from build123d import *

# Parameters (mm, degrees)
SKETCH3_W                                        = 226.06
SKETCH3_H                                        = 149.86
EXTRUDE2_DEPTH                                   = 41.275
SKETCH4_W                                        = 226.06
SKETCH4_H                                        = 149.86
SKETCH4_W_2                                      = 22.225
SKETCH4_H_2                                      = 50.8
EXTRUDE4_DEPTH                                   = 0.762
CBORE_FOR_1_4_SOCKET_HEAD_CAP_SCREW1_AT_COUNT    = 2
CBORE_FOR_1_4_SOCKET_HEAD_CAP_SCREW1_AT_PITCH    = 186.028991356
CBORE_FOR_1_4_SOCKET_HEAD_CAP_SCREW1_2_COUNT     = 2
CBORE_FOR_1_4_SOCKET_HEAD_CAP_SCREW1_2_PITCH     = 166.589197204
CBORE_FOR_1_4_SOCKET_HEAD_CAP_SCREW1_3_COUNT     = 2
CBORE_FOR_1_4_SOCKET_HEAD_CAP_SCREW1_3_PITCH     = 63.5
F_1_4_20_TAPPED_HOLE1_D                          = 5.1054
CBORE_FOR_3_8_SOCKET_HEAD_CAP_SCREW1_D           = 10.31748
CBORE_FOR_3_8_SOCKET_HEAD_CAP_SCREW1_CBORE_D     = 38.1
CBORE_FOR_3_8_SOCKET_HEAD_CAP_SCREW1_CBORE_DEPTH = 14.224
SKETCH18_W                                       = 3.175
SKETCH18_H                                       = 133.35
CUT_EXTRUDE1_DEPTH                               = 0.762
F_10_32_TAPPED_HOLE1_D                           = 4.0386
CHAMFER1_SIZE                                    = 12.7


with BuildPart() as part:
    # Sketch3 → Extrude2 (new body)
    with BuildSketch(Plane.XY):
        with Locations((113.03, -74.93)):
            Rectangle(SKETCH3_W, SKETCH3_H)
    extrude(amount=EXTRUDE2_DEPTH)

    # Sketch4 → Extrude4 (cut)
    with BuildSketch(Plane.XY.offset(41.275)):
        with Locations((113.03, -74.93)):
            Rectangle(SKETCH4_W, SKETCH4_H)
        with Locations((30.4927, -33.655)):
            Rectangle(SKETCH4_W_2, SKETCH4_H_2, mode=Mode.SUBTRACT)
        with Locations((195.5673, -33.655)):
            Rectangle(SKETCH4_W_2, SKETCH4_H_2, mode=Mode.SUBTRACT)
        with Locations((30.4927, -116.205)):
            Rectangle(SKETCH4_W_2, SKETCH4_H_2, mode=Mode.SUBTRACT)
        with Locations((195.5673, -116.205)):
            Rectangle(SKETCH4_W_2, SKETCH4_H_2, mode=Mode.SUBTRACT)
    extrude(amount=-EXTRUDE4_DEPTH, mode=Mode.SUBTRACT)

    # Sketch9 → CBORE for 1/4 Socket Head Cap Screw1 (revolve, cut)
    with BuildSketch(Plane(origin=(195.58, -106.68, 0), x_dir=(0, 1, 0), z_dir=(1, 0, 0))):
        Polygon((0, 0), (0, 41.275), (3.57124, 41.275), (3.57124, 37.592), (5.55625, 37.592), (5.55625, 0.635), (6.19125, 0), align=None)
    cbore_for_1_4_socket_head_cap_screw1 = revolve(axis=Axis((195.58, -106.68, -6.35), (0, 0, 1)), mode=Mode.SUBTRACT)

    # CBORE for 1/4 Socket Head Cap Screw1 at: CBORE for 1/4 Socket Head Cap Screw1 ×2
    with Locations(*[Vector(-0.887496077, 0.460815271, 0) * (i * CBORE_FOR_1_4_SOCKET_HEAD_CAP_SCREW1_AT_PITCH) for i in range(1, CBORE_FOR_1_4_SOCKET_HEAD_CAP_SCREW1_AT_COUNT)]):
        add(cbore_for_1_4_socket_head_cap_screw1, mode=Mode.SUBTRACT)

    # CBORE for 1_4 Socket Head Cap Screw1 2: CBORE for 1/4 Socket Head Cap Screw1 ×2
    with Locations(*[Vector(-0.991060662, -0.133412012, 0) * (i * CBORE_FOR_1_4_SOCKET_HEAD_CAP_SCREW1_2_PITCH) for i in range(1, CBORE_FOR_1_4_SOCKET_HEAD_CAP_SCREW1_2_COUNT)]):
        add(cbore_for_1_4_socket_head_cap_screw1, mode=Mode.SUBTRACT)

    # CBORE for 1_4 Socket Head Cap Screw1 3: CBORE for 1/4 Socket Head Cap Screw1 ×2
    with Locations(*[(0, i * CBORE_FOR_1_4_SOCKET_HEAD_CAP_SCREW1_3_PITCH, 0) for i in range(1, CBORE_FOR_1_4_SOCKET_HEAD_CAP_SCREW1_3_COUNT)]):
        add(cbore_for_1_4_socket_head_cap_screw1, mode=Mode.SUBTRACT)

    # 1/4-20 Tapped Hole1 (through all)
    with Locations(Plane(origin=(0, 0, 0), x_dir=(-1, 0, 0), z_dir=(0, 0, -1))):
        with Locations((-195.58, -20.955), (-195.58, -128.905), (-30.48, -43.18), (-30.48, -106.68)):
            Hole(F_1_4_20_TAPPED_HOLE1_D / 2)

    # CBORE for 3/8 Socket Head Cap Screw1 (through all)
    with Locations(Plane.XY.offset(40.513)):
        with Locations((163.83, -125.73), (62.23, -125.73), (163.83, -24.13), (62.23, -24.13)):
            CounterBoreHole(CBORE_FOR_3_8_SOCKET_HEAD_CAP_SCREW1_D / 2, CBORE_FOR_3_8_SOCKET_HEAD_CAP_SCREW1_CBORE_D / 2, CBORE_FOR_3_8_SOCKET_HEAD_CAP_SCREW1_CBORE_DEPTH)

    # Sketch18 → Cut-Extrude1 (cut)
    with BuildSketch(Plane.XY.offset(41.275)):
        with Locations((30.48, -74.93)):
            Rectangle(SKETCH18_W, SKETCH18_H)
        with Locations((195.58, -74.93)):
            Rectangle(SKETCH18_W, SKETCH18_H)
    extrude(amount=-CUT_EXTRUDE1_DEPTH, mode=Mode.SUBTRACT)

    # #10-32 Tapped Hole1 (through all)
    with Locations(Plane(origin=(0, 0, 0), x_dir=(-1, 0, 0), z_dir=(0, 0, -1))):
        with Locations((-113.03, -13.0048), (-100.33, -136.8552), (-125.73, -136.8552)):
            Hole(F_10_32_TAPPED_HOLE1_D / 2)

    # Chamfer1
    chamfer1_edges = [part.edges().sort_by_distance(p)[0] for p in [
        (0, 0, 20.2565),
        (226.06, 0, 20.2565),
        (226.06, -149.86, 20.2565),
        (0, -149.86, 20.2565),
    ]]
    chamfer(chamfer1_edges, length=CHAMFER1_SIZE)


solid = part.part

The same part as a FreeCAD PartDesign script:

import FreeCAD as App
import Part
import Sketcher
from FreeCAD import Vector
Q = App.Units.Quantity


def edges_at(feature, points):
    """Names of the edges that pass closest to the given points."""
    edges = feature.Shape.Edges
    near = lambda p: min(range(len(edges)), key=lambda i: edges[i].distToShape(Part.Vertex(*p))[0])
    return sorted({f"Edge{near(p) + 1}" for p in points})

doc = App.newDocument("Part")
body = doc.addObject("PartDesign::Body", "Body")

sketch1 = body.newObject("Sketcher::SketchObject", "Sketch")
sketch1.AttachmentSupport = (doc.getObject("XY_Plane"), [""])
sketch1.MapMode = "FlatFace"
sketch1.addGeometry(Part.LineSegment(Vector(0, 0, 0), Vector(0, -150, 0)), False)
sketch1.addGeometry(Part.LineSegment(Vector(0, -150, 0), Vector(226, -150, 0)), False)
sketch1.addGeometry(Part.LineSegment(Vector(226, -150, 0), Vector(226, 0, 0)), False)
sketch1.addGeometry(Part.LineSegment(Vector(226, 0, 0), Vector(0, 0, 0)), False)
sketch1.addConstraint(Sketcher.Constraint("Coincident", 0, 2, 1, 1))
sketch1.addConstraint(Sketcher.Constraint("Coincident", 1, 2, 2, 1))
sketch1.addConstraint(Sketcher.Constraint("Coincident", 2, 2, 3, 1))
sketch1.addConstraint(Sketcher.Constraint("Coincident", 3, 2, 0, 1))
sketch1.addConstraint(Sketcher.Constraint("Vertical", 0))
sketch1.addConstraint(Sketcher.Constraint("Horizontal", 1))
sketch1.addConstraint(Sketcher.Constraint("Vertical", 2))
sketch1.addConstraint(Sketcher.Constraint("Horizontal", 3))
sketch1.addConstraint(Sketcher.Constraint("Coincident", 3, 2, -1, 1))
sketch1.addConstraint(Sketcher.Constraint("DistanceX", 1, 1, 1, 2, Q("8.9 in")))
sketch1.addConstraint(Sketcher.Constraint("DistanceY", 0, 2, 0, 1, Q("5.9 in")))
pad1 = body.newObject("PartDesign::Pad", "Pad")
pad1.Profile = sketch1
pad1.Length = Q("1.625 in")

sketch2 = body.newObject("Sketcher::SketchObject", "Sketch001")
sketch2.AttachmentSupport = (doc.getObject("XY_Plane"), [""])
sketch2.MapMode = "FlatFace"
sketch2.AttachmentOffset = App.Placement(Vector(0, 0, 1.625 * 25.4), App.Rotation())
sketch2.addGeometry(Part.LineSegment(Vector(0, 0, 0), Vector(0, -150, 0)), False)
sketch2.addGeometry(Part.LineSegment(Vector(0, -150, 0), Vector(226, -150, 0)), False)
sketch2.addGeometry(Part.LineSegment(Vector(226, -150, 0), Vector(226, 0, 0)), False)
sketch2.addGeometry(Part.LineSegment(Vector(226, 0, 0), Vector(0, 0, 0)), False)
sketch2.addGeometry(Part.LineSegment(Vector(42, -142, 0), Vector(19, -142, 0)), False)
sketch2.addGeometry(Part.LineSegment(Vector(19, -142, 0), Vector(19, -91, 0)), False)
sketch2.addGeometry(Part.LineSegment(Vector(19, -91, 0), Vector(42, -91, 0)), False)
sketch2.addGeometry(Part.LineSegment(Vector(42, -91, 0), Vector(42, -142, 0)), False)
sketch2.addGeometry(Part.LineSegment(Vector(207, -142, 0), Vector(184, -142, 0)), False)
sketch2.addGeometry(Part.LineSegment(Vector(184, -142, 0), Vector(184, -91, 0)), False)
sketch2.addGeometry(Part.LineSegment(Vector(184, -91, 0), Vector(207, -91, 0)), False)
sketch2.addGeometry(Part.LineSegment(Vector(207, -91, 0), Vector(207, -142, 0)), False)
sketch2.addGeometry(Part.LineSegment(Vector(42, -59, 0), Vector(19, -59, 0)), False)
sketch2.addGeometry(Part.LineSegment(Vector(19, -59, 0), Vector(19, -8, 0)), False)
sketch2.addGeometry(Part.LineSegment(Vector(19, -8, 0), Vector(42, -8, 0)), False)
sketch2.addGeometry(Part.LineSegment(Vector(42, -8, 0), Vector(42, -59, 0)), False)
sketch2.addGeometry(Part.LineSegment(Vector(207, -59, 0), Vector(184, -59, 0)), False)
sketch2.addGeometry(Part.LineSegment(Vector(184, -59, 0), Vector(184, -8, 0)), False)
sketch2.addGeometry(Part.LineSegment(Vector(184, -8, 0), Vector(207, -8, 0)), False)
sketch2.addGeometry(Part.LineSegment(Vector(207, -8, 0), Vector(207, -59, 0)), False)
sketch2.addConstraint(Sketcher.Constraint("Coincident", 0, 2, 1, 1))
sketch2.addConstraint(Sketcher.Constraint("Coincident", 1, 2, 2, 1))
sketch2.addConstraint(Sketcher.Constraint("Coincident", 2, 2, 3, 1))
sketch2.addConstraint(Sketcher.Constraint("Coincident", 3, 2, 0, 1))
sketch2.addConstraint(Sketcher.Constraint("Coincident", 4, 2, 5, 1))
sketch2.addConstraint(Sketcher.Constraint("Coincident", 5, 2, 6, 1))
sketch2.addConstraint(Sketcher.Constraint("Coincident", 6, 2, 7, 1))
sketch2.addConstraint(Sketcher.Constraint("Coincident", 7, 2, 4, 1))
sketch2.addConstraint(Sketcher.Constraint("Coincident", 8, 2, 9, 1))
sketch2.addConstraint(Sketcher.Constraint("Coincident", 9, 2, 10, 1))
sketch2.addConstraint(Sketcher.Constraint("Coincident", 10, 2, 11, 1))
sketch2.addConstraint(Sketcher.Constraint("Coincident", 11, 2, 8, 1))
sketch2.addConstraint(Sketcher.Constraint("Coincident", 12, 2, 13, 1))
sketch2.addConstraint(Sketcher.Constraint("Coincident", 13, 2, 14, 1))
sketch2.addConstraint(Sketcher.Constraint("Coincident", 14, 2, 15, 1))
sketch2.addConstraint(Sketcher.Constraint("Coincident", 15, 2, 12, 1))
sketch2.addConstraint(Sketcher.Constraint("Coincident", 16, 2, 17, 1))
sketch2.addConstraint(Sketcher.Constraint("Coincident", 17, 2, 18, 1))
sketch2.addConstraint(Sketcher.Constraint("Coincident", 18, 2, 19, 1))
sketch2.addConstraint(Sketcher.Constraint("Coincident", 19, 2, 16, 1))
sketch2.addConstraint(Sketcher.Constraint("Vertical", 0))
sketch2.addConstraint(Sketcher.Constraint("Horizontal", 1))
sketch2.addConstraint(Sketcher.Constraint("Vertical", 2))
sketch2.addConstraint(Sketcher.Constraint("Horizontal", 3))
sketch2.addConstraint(Sketcher.Constraint("Horizontal", 4))
sketch2.addConstraint(Sketcher.Constraint("Vertical", 5))
sketch2.addConstraint(Sketcher.Constraint("Horizontal", 6))
sketch2.addConstraint(Sketcher.Constraint("Vertical", 7))
sketch2.addConstraint(Sketcher.Constraint("Horizontal", 8))
sketch2.addConstraint(Sketcher.Constraint("Vertical", 9))
sketch2.addConstraint(Sketcher.Constraint("Horizontal", 10))
sketch2.addConstraint(Sketcher.Constraint("Vertical", 11))
sketch2.addConstraint(Sketcher.Constraint("Horizontal", 12))
sketch2.addConstraint(Sketcher.Constraint("Vertical", 13))
sketch2.addConstraint(Sketcher.Constraint("Horizontal", 14))
sketch2.addConstraint(Sketcher.Constraint("Vertical", 15))
sketch2.addConstraint(Sketcher.Constraint("Horizontal", 16))
sketch2.addConstraint(Sketcher.Constraint("Vertical", 17))
sketch2.addConstraint(Sketcher.Constraint("Horizontal", 18))
sketch2.addConstraint(Sketcher.Constraint("Vertical", 19))
sketch2.addConstraint(Sketcher.Constraint("Coincident", 3, 2, -1, 1))
sketch2.addConstraint(Sketcher.Constraint("Horizontal", 7, 2, 8, 2))
sketch2.addConstraint(Sketcher.Constraint("Horizontal", 6, 2, 9, 2))
sketch2.addConstraint(Sketcher.Constraint("Horizontal", 15, 2, 16, 2))
sketch2.addConstraint(Sketcher.Constraint("Horizontal", 14, 2, 17, 2))
sketch2.addConstraint(Sketcher.Constraint("Vertical", 5, 2, 12, 2))
sketch2.addConstraint(Sketcher.Constraint("Vertical", 7, 2, 14, 2))
sketch2.addConstraint(Sketcher.Constraint("Vertical", 9, 2, 16, 2))
sketch2.addConstraint(Sketcher.Constraint("Vertical", 11, 2, 18, 2))
sketch2.addConstraint(Sketcher.Constraint("Equal", 6, 8))
sketch2.addConstraint(Sketcher.Constraint("Equal", 11, 13))
sketch2.addConstraint(Sketcher.Constraint("DistanceY", 5, 1, 5, 2, Q("2 in")))
sketch2.addConstraint(Sketcher.Constraint("DistanceX", 1, 1, 1, 2, Q("8.9 in")))
sketch2.addConstraint(Sketcher.Constraint("DistanceY", 0, 2, 0, 1, Q("5.9 in")))
sketch2.addConstraint(Sketcher.Constraint("DistanceX", 4, 2, 4, 1, Q("0.875 in")))
sketch2.addConstraint(Sketcher.Constraint("DistanceY", 5, 2, 12, 2, Q("1.25 in")))
sketch2.addConstraint(Sketcher.Constraint("DistanceX", -1, 1, 4, 2, Q("0.763 in")))
sketch2.addConstraint(Sketcher.Constraint("DistanceY", 4, 2, -1, 1, Q("5.575 in")))
sketch2.addConstraint(Sketcher.Constraint("DistanceX", -1, 1, 8, 2, Q("7.262 in")))
pocket1 = body.newObject("PartDesign::Pocket", "Pocket")
pocket1.Profile = sketch2
pocket1.Length = Q("0.03 in")

sketch3 = body.newObject("Sketcher::SketchObject", "Sketch002")
sketch3.AttachmentSupport = (doc.getObject("YZ_Plane"), [""])
sketch3.MapMode = "FlatFace"
sketch3.AttachmentOffset = App.Placement(Vector(0, 0, 7.7 * 25.4), App.Rotation())
sketch3.addGeometry(Part.LineSegment(Vector(-106.7, 41.3, 0), Vector(-106.7, 0, 0)), False)
sketch3.addGeometry(Part.LineSegment(Vector(-106.7, 0, 0), Vector(-100.5, 0, 0)), False)
sketch3.addGeometry(Part.LineSegment(Vector(-100.5, 0, 0), Vector(-101.1, 0.6, 0)), False)
sketch3.addGeometry(Part.LineSegment(Vector(-101.1, 0.6, 0), Vector(-101.1, 37.6, 0)), False)
sketch3.addGeometry(Part.LineSegment(Vector(-101.1, 37.6, 0), Vector(-103.1, 37.6, 0)), False)
sketch3.addGeometry(Part.LineSegment(Vector(-103.1, 37.6, 0), Vector(-103.1, 41.3, 0)), False)
sketch3.addGeometry(Part.LineSegment(Vector(-103.1, 41.3, 0), Vector(-106.7, 41.3, 0)), False)
sketch3.addGeometry(Part.LineSegment(Vector(-106.7, 0, 0), Vector(-106.7, 41.3, 0)), True)
sketch3.addConstraint(Sketcher.Constraint("Coincident", 0, 2, 1, 1))
sketch3.addConstraint(Sketcher.Constraint("Coincident", 1, 2, 2, 1))
sketch3.addConstraint(Sketcher.Constraint("Coincident", 2, 2, 3, 1))
sketch3.addConstraint(Sketcher.Constraint("Coincident", 3, 2, 4, 1))
sketch3.addConstraint(Sketcher.Constraint("Coincident", 4, 2, 5, 1))
sketch3.addConstraint(Sketcher.Constraint("Coincident", 5, 2, 6, 1))
sketch3.addConstraint(Sketcher.Constraint("Coincident", 6, 2, 0, 1))
sketch3.addConstraint(Sketcher.Constraint("Vertical", 0))
sketch3.addConstraint(Sketcher.Constraint("Horizontal", 1))
sketch3.addConstraint(Sketcher.Constraint("Vertical", 3))
sketch3.addConstraint(Sketcher.Constraint("Horizontal", 4))
sketch3.addConstraint(Sketcher.Constraint("Vertical", 5))
sketch3.addConstraint(Sketcher.Constraint("Horizontal", 6))
sketch3.addConstraint(Sketcher.Constraint("Vertical", 7))
sketch3.addConstraint(Sketcher.Constraint("Coincident", 7, 1, 0, 2))
sketch3.addConstraint(Sketcher.Constraint("PointOnObject", 0, 2, -1))
sketch3.addConstraint(Sketcher.Constraint("Horizontal", 5, 2, 7, 2))
sketch3.addConstraint(Sketcher.Constraint("Angle", 2, Q("135 deg")))
sketch3.addConstraint(Sketcher.Constraint("DistanceX", 0, 2, -1, 1, Q("4.2 in")))
sketch3.addConstraint(Sketcher.Constraint("DistanceY", 2, 2, 5, 2, Q("1.6 in")))
sketch3.addConstraint(Sketcher.Constraint("DistanceY", 0, 2, 0, 1, Q("1.625 in")))
sketch3.addConstraint(Sketcher.Constraint("DistanceY", 3, 1, 3, 2, Q("1.455 in")))
sketch3.addConstraint(Sketcher.Constraint("DistanceX", 6, 2, 6, 1, Q("0.1406 in")))
sketch3.addConstraint(Sketcher.Constraint("DistanceX", 0, 2, 2, 2, Q("0.21875 in")))
groove = body.newObject("PartDesign::Groove", "Groove")
groove.Profile = sketch3
groove.ReferenceAxis = (sketch3, ["Axis0"])
groove.Angle = 360
doc.recompute()

datumline = body.newObject("PartDesign::Line", "DatumLine")
datumline.Placement = App.Placement(Vector(0, 0, 0), App.Rotation(Vector(0, 0, 1), Vector(-0.887496077, 0.460815271, 0)))
linearpattern = body.newObject("PartDesign::LinearPattern", "LinearPattern")
linearpattern.Originals = [groove]
linearpattern.Direction = (datumline, [""])
linearpattern.Mode = "offset"
linearpattern.Offset = 186.028991
linearpattern.Occurrences = 2
body.Tip = linearpattern
doc.recompute()

datumline2 = body.newObject("PartDesign::Line", "DatumLine001")
datumline2.Placement = App.Placement(Vector(0, 0, 0), App.Rotation(Vector(0, 0, 1), Vector(-0.991060662, -0.133412012, 0)))
linearpattern2 = body.newObject("PartDesign::LinearPattern", "LinearPattern001")
linearpattern2.Originals = [groove]
linearpattern2.Direction = (datumline2, [""])
linearpattern2.Mode = "offset"
linearpattern2.Offset = 166.589197
linearpattern2.Occurrences = 2
body.Tip = linearpattern2
doc.recompute()

linearpattern3 = body.newObject("PartDesign::LinearPattern", "LinearPattern002")
linearpattern3.Originals = [groove]
linearpattern3.Direction = (doc.getObject("Y_Axis"), [""])
linearpattern3.Mode = "offset"
linearpattern3.Offset = Q("2.5 in")
linearpattern3.Occurrences = 2
body.Tip = linearpattern3

sketch4 = body.newObject("Sketcher::SketchObject", "Sketch003")
sketch4.AttachmentSupport = (doc.getObject("XY_Plane"), [""])
sketch4.MapMode = "FlatFace"
sketch4.addGeometry(Part.Circle(Vector(195.6, -21, 0), Vector(0, 0, 1), 2.6), False)
sketch4.addGeometry(Part.Circle(Vector(195.6, -128.9, 0), Vector(0, 0, 1), 2.6), False)
sketch4.addGeometry(Part.Circle(Vector(30.5, -43.2, 0), Vector(0, 0, 1), 2.6), False)
sketch4.addGeometry(Part.Circle(Vector(30.5, -106.7, 0), Vector(0, 0, 1), 2.6), False)
sketch4.addConstraint(Sketcher.Constraint("Equal", 0, 1))
sketch4.addConstraint(Sketcher.Constraint("Equal", 1, 2))
sketch4.addConstraint(Sketcher.Constraint("Equal", 2, 3))
sketch4.addConstraint(Sketcher.Constraint("Vertical", 0, 3, 1, 3))
sketch4.addConstraint(Sketcher.Constraint("Vertical", 2, 3, 3, 3))
sketch4.addConstraint(Sketcher.Constraint("Diameter", 0, Q("0.201 in")))
sketch4.addConstraint(Sketcher.Constraint("DistanceX", -1, 1, 0, 3, Q("7.7 in")))
sketch4.addConstraint(Sketcher.Constraint("DistanceX", -1, 1, 2, 3, Q("1.2 in")))
sketch4.addConstraint(Sketcher.Constraint("DistanceY", 2, 3, -1, 1, Q("1.7 in")))
sketch4.addConstraint(Sketcher.Constraint("DistanceY", 3, 3, -1, 1, Q("4.2 in")))
sketch4.addConstraint(Sketcher.Constraint("DistanceY", 1, 3, 0, 3, Q("4.25 in")))
sketch4.addConstraint(Sketcher.Constraint("DistanceY", 0, 3, -1, 1, Q("0.825 in")))
doc.recompute()
hole = body.newObject("PartDesign::Hole", "Hole")
hole.Profile = sketch4
hole.ThreadType = "None"
hole.Diameter = Q("0.201 in")
hole.DepthType = "ThroughAll"
hole.Reversed = True

sketch5 = body.newObject("Sketcher::SketchObject", "Sketch004")
sketch5.AttachmentSupport = (doc.getObject("XY_Plane"), [""])
sketch5.MapMode = "FlatFace"
sketch5.AttachmentOffset = App.Placement(Vector(0, 0, 1.595 * 25.4), App.Rotation())
sketch5.addGeometry(Part.Circle(Vector(164, -126, 0), Vector(0, 0, 1), 5), False)
sketch5.addGeometry(Part.Circle(Vector(62, -126, 0), Vector(0, 0, 1), 5), False)
sketch5.addGeometry(Part.Circle(Vector(164, -24, 0), Vector(0, 0, 1), 5), False)
sketch5.addGeometry(Part.Circle(Vector(62, -24, 0), Vector(0, 0, 1), 5), False)
sketch5.addConstraint(Sketcher.Constraint("Equal", 0, 1))
sketch5.addConstraint(Sketcher.Constraint("Equal", 1, 2))
sketch5.addConstraint(Sketcher.Constraint("Equal", 2, 3))
sketch5.addConstraint(Sketcher.Constraint("Horizontal", 0, 3, 1, 3))
sketch5.addConstraint(Sketcher.Constraint("Horizontal", 2, 3, 3, 3))
sketch5.addConstraint(Sketcher.Constraint("Vertical", 0, 3, 2, 3))
sketch5.addConstraint(Sketcher.Constraint("Vertical", 1, 3, 3, 3))
sketch5.addConstraint(Sketcher.Constraint("DistanceX", 1, 3, 0, 3, Q("4 in")))
sketch5.addConstraint(Sketcher.Constraint("DistanceY", 0, 3, 2, 3, Q("4 in")))
sketch5.addConstraint(Sketcher.Constraint("Diameter", 0, Q("0.4062 in")))
sketch5.addConstraint(Sketcher.Constraint("DistanceX", -1, 1, 0, 3, Q("6.45 in")))
sketch5.addConstraint(Sketcher.Constraint("DistanceY", 0, 3, -1, 1, Q("4.95 in")))
doc.recompute()
hole2 = body.newObject("PartDesign::Hole", "Hole001")
hole2.Profile = sketch5
hole2.ThreadType = "None"
hole2.Diameter = Q("0.4062 in")
hole2.DepthType = "ThroughAll"
hole2.HoleCutType = "Counterbore"
hole2.HoleCutDiameter = Q("1.5 in")
hole2.HoleCutDepth = Q("0.56 in")

sketch6 = body.newObject("Sketcher::SketchObject", "Sketch005")
sketch6.AttachmentSupport = (doc.getObject("XY_Plane"), [""])
sketch6.MapMode = "FlatFace"
sketch6.AttachmentOffset = App.Placement(Vector(0, 0, 1.625 * 25.4), App.Rotation())
sketch6.addGeometry(Part.LineSegment(Vector(28.9, -8.3, 0), Vector(28.9, -141.6, 0)), False)
sketch6.addGeometry(Part.LineSegment(Vector(28.9, -141.6, 0), Vector(32.1, -141.6, 0)), False)
sketch6.addGeometry(Part.LineSegment(Vector(32.1, -141.6, 0), Vector(32.1, -8.3, 0)), False)
sketch6.addGeometry(Part.LineSegment(Vector(32.1, -8.3, 0), Vector(28.9, -8.3, 0)), False)
sketch6.addGeometry(Part.LineSegment(Vector(194, -8.3, 0), Vector(194, -141.6, 0)), False)
sketch6.addGeometry(Part.LineSegment(Vector(194, -141.6, 0), Vector(197.2, -141.6, 0)), False)
sketch6.addGeometry(Part.LineSegment(Vector(197.2, -141.6, 0), Vector(197.2, -8.3, 0)), False)
sketch6.addGeometry(Part.LineSegment(Vector(197.2, -8.3, 0), Vector(194, -8.3, 0)), False)
sketch6.addConstraint(Sketcher.Constraint("Coincident", 0, 2, 1, 1))
sketch6.addConstraint(Sketcher.Constraint("Coincident", 1, 2, 2, 1))
sketch6.addConstraint(Sketcher.Constraint("Coincident", 2, 2, 3, 1))
sketch6.addConstraint(Sketcher.Constraint("Coincident", 3, 2, 0, 1))
sketch6.addConstraint(Sketcher.Constraint("Coincident", 4, 2, 5, 1))
sketch6.addConstraint(Sketcher.Constraint("Coincident", 5, 2, 6, 1))
sketch6.addConstraint(Sketcher.Constraint("Coincident", 6, 2, 7, 1))
sketch6.addConstraint(Sketcher.Constraint("Coincident", 7, 2, 4, 1))
sketch6.addConstraint(Sketcher.Constraint("Vertical", 0))
sketch6.addConstraint(Sketcher.Constraint("Horizontal", 1))
sketch6.addConstraint(Sketcher.Constraint("Vertical", 2))
sketch6.addConstraint(Sketcher.Constraint("Horizontal", 3))
sketch6.addConstraint(Sketcher.Constraint("Vertical", 4))
sketch6.addConstraint(Sketcher.Constraint("Horizontal", 5))
sketch6.addConstraint(Sketcher.Constraint("Vertical", 6))
sketch6.addConstraint(Sketcher.Constraint("Horizontal", 7))
sketch6.addConstraint(Sketcher.Constraint("Horizontal", 1, 2, 4, 2))
sketch6.addConstraint(Sketcher.Constraint("Horizontal", 3, 2, 6, 2))
sketch6.addConstraint(Sketcher.Constraint("Equal", 3, 5))
sketch6.addConstraint(Sketcher.Constraint("DistanceY", 0, 2, 0, 1, Q("5.25 in")))
sketch6.addConstraint(Sketcher.Constraint("DistanceX", 0, 2, 4, 2, Q("6.5 in")))
sketch6.addConstraint(Sketcher.Constraint("DistanceX", 1, 1, 1, 2, Q("0.125 in")))
sketch6.addConstraint(Sketcher.Constraint("DistanceY", 0, 2, -1, 1, Q("5.575 in")))
sketch6.addConstraint(Sketcher.Constraint("DistanceX", -1, 1, 0, 2, Q("1.1375 in")))
pocket2 = body.newObject("PartDesign::Pocket", "Pocket001")
pocket2.Profile = sketch6
pocket2.Length = Q("0.03 in")

sketch7 = body.newObject("Sketcher::SketchObject", "Sketch006")
sketch7.AttachmentSupport = (doc.getObject("XY_Plane"), [""])
sketch7.MapMode = "FlatFace"
sketch7.addGeometry(Part.Circle(Vector(113, -13, 0), Vector(0, 0, 1), 2), False)
sketch7.addGeometry(Part.Circle(Vector(100.3, -136.9, 0), Vector(0, 0, 1), 2), False)
sketch7.addGeometry(Part.Circle(Vector(125.7, -136.9, 0), Vector(0, 0, 1), 2), False)
sketch7.addConstraint(Sketcher.Constraint("Equal", 0, 1))
sketch7.addConstraint(Sketcher.Constraint("Equal", 1, 2))
sketch7.addConstraint(Sketcher.Constraint("Horizontal", 1, 3, 2, 3))
sketch7.addConstraint(Sketcher.Constraint("Diameter", 0, Q("0.159 in")))
sketch7.addConstraint(Sketcher.Constraint("DistanceX", 1, 3, 2, 3, Q("1 in")))
sketch7.addConstraint(Sketcher.Constraint("DistanceX", 1, 3, 0, 3, Q("0.5 in")))
sketch7.addConstraint(Sketcher.Constraint("DistanceX", -1, 1, 0, 3, Q("4.45 in")))
sketch7.addConstraint(Sketcher.Constraint("DistanceY", 0, 3, -1, 1, Q("0.512 in")))
sketch7.addConstraint(Sketcher.Constraint("DistanceY", 1, 3, -1, 1, Q("5.388 in")))
doc.recompute()
hole3 = body.newObject("PartDesign::Hole", "Hole002")
hole3.Profile = sketch7
hole3.ThreadType = "None"
hole3.Diameter = Q("0.159 in")
hole3.DepthType = "ThroughAll"
hole3.Reversed = True
doc.recompute()

chamfer = body.newObject("PartDesign::Chamfer", "Chamfer")
chamfer.Base = (hole3, edges_at(hole3, [
    (0, 0, 20.256),
    (226.06, 0, 20.256),
    (226.06, -149.86, 20.256),
    (0, -149.86, 20.256),
]))
chamfer.Size = Q("0.5 in")

doc.recompute()
